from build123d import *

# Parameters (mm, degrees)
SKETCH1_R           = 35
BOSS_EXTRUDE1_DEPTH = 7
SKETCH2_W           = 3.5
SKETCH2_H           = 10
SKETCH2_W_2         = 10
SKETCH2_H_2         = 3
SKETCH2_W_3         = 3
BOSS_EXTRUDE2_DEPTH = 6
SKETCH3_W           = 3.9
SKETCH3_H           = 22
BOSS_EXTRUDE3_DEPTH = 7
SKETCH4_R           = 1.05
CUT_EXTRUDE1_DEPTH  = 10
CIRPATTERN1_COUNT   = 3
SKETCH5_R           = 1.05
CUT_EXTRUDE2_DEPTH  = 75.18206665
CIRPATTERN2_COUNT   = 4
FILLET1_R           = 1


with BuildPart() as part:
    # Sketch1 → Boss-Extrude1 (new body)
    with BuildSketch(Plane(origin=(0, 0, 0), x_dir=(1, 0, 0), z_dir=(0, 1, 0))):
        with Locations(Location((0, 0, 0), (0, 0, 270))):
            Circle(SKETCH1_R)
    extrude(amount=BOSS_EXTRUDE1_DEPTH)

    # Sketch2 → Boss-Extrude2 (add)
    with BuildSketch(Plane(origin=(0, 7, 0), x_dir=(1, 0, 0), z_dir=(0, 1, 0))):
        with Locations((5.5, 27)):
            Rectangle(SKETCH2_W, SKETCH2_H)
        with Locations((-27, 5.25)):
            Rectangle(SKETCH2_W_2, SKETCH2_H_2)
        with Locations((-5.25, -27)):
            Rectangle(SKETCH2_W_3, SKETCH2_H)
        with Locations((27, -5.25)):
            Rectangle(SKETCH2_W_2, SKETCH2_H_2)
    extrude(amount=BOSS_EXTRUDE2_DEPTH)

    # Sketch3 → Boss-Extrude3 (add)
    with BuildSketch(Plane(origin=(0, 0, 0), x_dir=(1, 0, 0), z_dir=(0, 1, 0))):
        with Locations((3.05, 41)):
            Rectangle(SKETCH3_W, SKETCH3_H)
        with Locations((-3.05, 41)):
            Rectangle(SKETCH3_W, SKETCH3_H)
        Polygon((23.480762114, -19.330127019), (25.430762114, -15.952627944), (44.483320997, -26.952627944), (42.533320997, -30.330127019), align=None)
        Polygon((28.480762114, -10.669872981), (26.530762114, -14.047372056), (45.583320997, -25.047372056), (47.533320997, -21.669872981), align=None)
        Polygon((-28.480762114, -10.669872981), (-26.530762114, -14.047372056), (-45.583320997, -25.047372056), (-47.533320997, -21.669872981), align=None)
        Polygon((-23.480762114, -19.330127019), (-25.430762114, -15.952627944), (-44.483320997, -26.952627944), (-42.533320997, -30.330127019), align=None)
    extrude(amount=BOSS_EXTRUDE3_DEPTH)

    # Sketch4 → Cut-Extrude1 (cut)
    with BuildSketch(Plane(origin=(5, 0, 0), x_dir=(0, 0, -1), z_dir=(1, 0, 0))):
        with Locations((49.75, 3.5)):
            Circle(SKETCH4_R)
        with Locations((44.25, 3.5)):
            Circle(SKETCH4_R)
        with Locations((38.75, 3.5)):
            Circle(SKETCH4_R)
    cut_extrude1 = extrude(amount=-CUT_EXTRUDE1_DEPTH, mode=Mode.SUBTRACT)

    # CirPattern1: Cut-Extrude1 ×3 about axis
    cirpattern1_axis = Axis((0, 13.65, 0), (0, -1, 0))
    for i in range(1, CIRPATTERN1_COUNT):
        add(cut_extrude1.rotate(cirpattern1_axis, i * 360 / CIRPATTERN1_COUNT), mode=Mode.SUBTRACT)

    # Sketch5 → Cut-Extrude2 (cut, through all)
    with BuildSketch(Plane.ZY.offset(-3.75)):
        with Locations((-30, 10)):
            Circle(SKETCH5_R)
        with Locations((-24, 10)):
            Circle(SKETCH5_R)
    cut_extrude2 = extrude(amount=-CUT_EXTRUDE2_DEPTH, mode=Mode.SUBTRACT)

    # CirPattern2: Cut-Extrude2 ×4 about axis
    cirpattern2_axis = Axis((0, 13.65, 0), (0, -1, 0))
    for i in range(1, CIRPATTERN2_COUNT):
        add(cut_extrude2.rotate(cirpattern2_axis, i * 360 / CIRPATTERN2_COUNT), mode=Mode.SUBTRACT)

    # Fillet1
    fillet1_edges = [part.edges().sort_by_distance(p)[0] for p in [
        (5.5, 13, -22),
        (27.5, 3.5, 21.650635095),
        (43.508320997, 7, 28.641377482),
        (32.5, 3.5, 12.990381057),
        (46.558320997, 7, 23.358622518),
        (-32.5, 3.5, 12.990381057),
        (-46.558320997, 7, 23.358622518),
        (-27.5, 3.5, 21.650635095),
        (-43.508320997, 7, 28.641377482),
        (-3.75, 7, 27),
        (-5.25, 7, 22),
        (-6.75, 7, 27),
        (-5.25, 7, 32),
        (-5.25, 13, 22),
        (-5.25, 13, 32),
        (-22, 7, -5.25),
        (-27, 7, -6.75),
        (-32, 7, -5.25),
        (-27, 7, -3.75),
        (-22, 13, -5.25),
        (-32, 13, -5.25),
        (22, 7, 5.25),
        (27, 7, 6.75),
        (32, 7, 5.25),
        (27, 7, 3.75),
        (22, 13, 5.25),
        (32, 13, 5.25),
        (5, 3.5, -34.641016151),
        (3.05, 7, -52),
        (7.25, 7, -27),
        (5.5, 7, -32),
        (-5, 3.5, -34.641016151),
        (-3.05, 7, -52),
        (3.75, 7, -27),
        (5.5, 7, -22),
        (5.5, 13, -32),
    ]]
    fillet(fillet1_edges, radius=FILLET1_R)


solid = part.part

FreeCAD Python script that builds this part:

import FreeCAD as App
import Part
import Sketcher
Q = App.Units.Quantity


def edges_at(feature, points):
    """Names of the edges that pass closest to the given points."""
    edges = feature.Shape.Edges
    near = lambda p: min(range(len(edges)), key=lambda i: edges[i].distToShape(Part.Vertex(*p))[0])
    return sorted({f"Edge{near(p) + 1}" for p in points})


def add_polygon(sketch, points):
    """Adds a closed chain of lines whose ends are joined by coincident constraints."""
    first, n = sketch.GeometryCount, len(points)
    for a, b in zip(points, points[1:] + points[:1]):
        sketch.addGeometry(Part.LineSegment(App.Vector(*a, 0), App.Vector(*b, 0)), False)
    for i in range(n):
        sketch.addConstraint(Sketcher.Constraint("Coincident", first + i, 2, first + (i + 1) % n, 1))

doc = App.newDocument("Part")
body = doc.addObject("PartDesign::Body", "Body")

# Sketch on XZ plane
sketch1 = body.newObject("Sketcher::SketchObject", "Sketch")
sketch1.AttachmentSupport = (doc.getObject("XZ_Plane"), [""])
sketch1.MapMode = "FlatFace"
sketch1.addGeometry(Part.Circle(App.Vector(0, 0, 0), App.Vector(0, 0, 1), 35), False)
sketch1.addConstraint(Sketcher.Constraint("Coincident", 0, 3, -1, 1))
sketch1.addConstraint(Sketcher.Constraint("Diameter", 0, Q("70 mm")))
pad1 = body.newObject("PartDesign::Pad", "Pad")
pad1.Profile = sketch1
pad1.Length = 7
pad1.Reversed = True

# Sketch on XZ plane
sketch2 = body.newObject("Sketcher::SketchObject", "Sketch001")
sketch2.AttachmentSupport = (doc.getObject("XZ_Plane"), [""])
sketch2.MapMode = "FlatFace"
sketch2.AttachmentOffset = App.Placement(App.Vector(0, 0, -7), App.Rotation())
add_polygon(sketch2, [(3.8, -32), (3.8, -22), (7.2, -22), (7.2, -32)])  # lines 0-3
add_polygon(sketch2, [(-32, -6.8), (-32, -3.8), (-22, -3.8), (-22, -6.8)])  # lines 4-7
add_polygon(sketch2, [(-6.8, 22), (-6.8, 32), (-3.8, 32), (-3.8, 22)])  # lines 8-11
add_polygon(sketch2, [(22, 3.8), (22, 6.8), (32, 6.8), (32, 3.8)])  # lines 12-15
sketch2.addConstraint(Sketcher.Constraint("Vertical", 0))
sketch2.addConstraint(Sketcher.Constraint("Horizontal", 1))
sketch2.addConstraint(Sketcher.Constraint("Vertical", 2))
sketch2.addConstraint(Sketcher.Constraint("Horizontal", 3))
sketch2.addConstraint(Sketcher.Constraint("Vertical", 4))
sketch2.addConstraint(Sketcher.Constraint("Horizontal", 5))
sketch2.addConstraint(Sketcher.Constraint("Vertical", 6))
sketch2.addConstraint(Sketcher.Constraint("Horizontal", 7))
sketch2.addConstraint(Sketcher.Constraint("Vertical", 8))
sketch2.addConstraint(Sketcher.Constraint("Horizontal", 9))
sketch2.addConstraint(Sketcher.Constraint("Vertical", 10))
sketch2.addConstraint(Sketcher.Constraint("Horizontal", 11))
sketch2.addConstraint(Sketcher.Constraint("Vertical", 12))
sketch2.addConstraint(Sketcher.Constraint("Horizontal", 13))
sketch2.addConstraint(Sketcher.Constraint("Vertical", 14))
sketch2.addConstraint(Sketcher.Constraint("Horizontal", 15))
sketch2.addConstraint(Sketcher.Constraint("Symmetric", 3, 2, 9, 2, -1, 1))
sketch2.addConstraint(Sketcher.Constraint("Symmetric", 6, 2, 12, 2, -1, 1))
sketch2.addConstraint(Sketcher.Constraint("Symmetric", 4, 2, 14, 2, -1, 1))
sketch2.addConstraint(Sketcher.Constraint("Equal", 15, 0))
sketch2.addConstraint(Sketcher.Constraint("Equal", 11, 4))
sketch2.addConstraint(Sketcher.Constraint("Equal", 2, 8))
sketch2.addConstraint(Sketcher.Constraint("DistanceX", 5, 1, 5, 2, Q("10 mm")))
sketch2.addConstraint(Sketcher.Constraint("DistanceX", 9, 1, 9, 2, Q("3 mm")))
sketch2.addConstraint(Sketcher.Constraint("DistanceX", 1, 1, 1, 2, Q("3.5 mm")))
sketch2.addConstraint(Sketcher.Constraint("DistanceY", 0, 2, -1, 1, Q("22 mm")))
sketch2.addConstraint(Sketcher.Constraint("DistanceX", 4, 2, -1, 1, Q("32 mm")))
sketch2.addConstraint(Sketcher.Constraint("DistanceX", 8, 2, 0, 2, Q("10.5 mm")))
sketch2.addConstraint(Sketcher.Constraint("DistanceY", 4, 2, -1, 1, Q("3.75 mm")))
pad2 = body.newObject("PartDesign::Pad", "Pad001")
pad2.Profile = sketch2
pad2.Length = 6
pad2.Reversed = True

# Sketch on XZ plane
sketch3 = body.newObject("Sketcher::SketchObject", "Sketch002")
sketch3.AttachmentSupport = (doc.getObject("XZ_Plane"), [""])
sketch3.MapMode = "FlatFace"
add_polygon(sketch3, [(1.1, -52), (1.1, -30), (5, -30), (5, -52)])  # lines 0-3
add_polygon(sketch3, [(-5, -52), (-5, -30), (-1.1, -30), (-1.1, -52)])  # lines 4-7
add_polygon(sketch3, [(25.4, 16), (23.5, 19.3), (42.5, 30.3), (44.5, 27)])  # lines 8-11
add_polygon(sketch3, [(28.5, 10.7), (26.5, 14), (45.6, 25), (47.5, 21.7)])  # lines 12-15
add_polygon(sketch3, [(-26.5, 14), (-28.5, 10.7), (-47.5, 21.7), (-45.6, 25)])  # lines 16-19
add_polygon(sketch3, [(-23.5, 19.3), (-25.4, 16), (-44.5, 27), (-42.5, 30.3)])  # lines 20-23
sketch3.addConstraint(Sketcher.Constraint("Vertical", 0))
sketch3.addConstraint(Sketcher.Constraint("Horizontal", 1))
sketch3.addConstraint(Sketcher.Constraint("Vertical", 2))
sketch3.addConstraint(Sketcher.Constraint("Horizontal", 3))
sketch3.addConstraint(Sketcher.Constraint("Vertical", 4))
sketch3.addConstraint(Sketcher.Constraint("Horizontal", 5))
sketch3.addConstraint(Sketcher.Constraint("Vertical", 6))
sketch3.addConstraint(Sketcher.Constraint("Horizontal", 7))
sketch3.addConstraint(Sketcher.Constraint("Symmetric", 1, 2, 4, 2, -2))
sketch3.addConstraint(Sketcher.Constraint("Symmetric", 3, 2, 6, 2, -2))
sketch3.addConstraint(Sketcher.Constraint("Symmetric", 15, 2, 16, 2, -2))
sketch3.addConstraint(Sketcher.Constraint("Symmetric", 14, 2, 17, 2, -2))
sketch3.addConstraint(Sketcher.Constraint("Symmetric", 13, 2, 18, 2, -2))
sketch3.addConstraint(Sketcher.Constraint("Symmetric", 12, 2, 19, 2, -2))
sketch3.addConstraint(Sketcher.Constraint("Symmetric", 11, 2, 20, 2, -2))
sketch3.addConstraint(Sketcher.Constraint("Symmetric", 10, 2, 21, 2, -2))
sketch3.addConstraint(Sketcher.Constraint("Symmetric", 9, 2, 22, 2, -2))
sketch3.addConstraint(Sketcher.Constraint("Symmetric", 8, 2, 23, 2, -2))
sketch3.addConstraint(Sketcher.Constraint("Perpendicular", 8, 9))
sketch3.addConstraint(Sketcher.Constraint("Perpendicular", 9, 10))
sketch3.addConstraint(Sketcher.Constraint("Perpendicular", 10, 11))
sketch3.addConstraint(Sketcher.Constraint("Perpendicular", 11, 12))
sketch3.addConstraint(Sketcher.Constraint("Perpendicular", 12, 13))
sketch3.addConstraint(Sketcher.Constraint("Perpendicular", 13, 14))
sketch3.addConstraint(Sketcher.Constraint("Perpendicular", 14, 15))
sketch3.addConstraint(Sketcher.Constraint("Equal", 10, 12))
sketch3.addConstraint(Sketcher.Constraint("Equal", 11, 13))
sketch3.addConstraint(Sketcher.Constraint("DistanceY", 0, 1, 0, 2, Q("22 mm")))
sketch3.addConstraint(Sketcher.Constraint("Angle", 8, Q("120 deg")))
sketch3.addConstraint(Sketcher.Constraint("Distance", 9, Q("22 mm")))
sketch3.addConstraint(Sketcher.Constraint("DistanceX", 1, 1, 1, 2, Q("3.9 mm")))
sketch3.addConstraint(Sketcher.Constraint("DistanceY", 0, 2, -1, 1, Q("30 mm")))
sketch3.addConstraint(Sketcher.Constraint("DistanceX", -1, 1, 1, 2, Q("5 mm")))
sketch3.addConstraint(Sketcher.Constraint("DistanceX", 9, 2, 14, 2, Q("5 mm")))
sketch3.addConstraint(Sketcher.Constraint("Distance", 8, Q("3.9 mm")))
sketch3.addConstraint(Sketcher.Constraint("DistanceX", -1, 1, 9, 2, Q("42.533321 mm")))
sketch3.addConstraint(Sketcher.Constraint("DistanceY", -1, 1, 8, 2, Q("19.330127 mm")))
sketch3.addConstraint(Sketcher.Constraint("DistanceY", -1, 1, 12, 2, Q("14.047372 mm")))
pad3 = body.newObject("PartDesign::Pad", "Pad002")
pad3.Profile = sketch3
pad3.Length = 7
pad3.Reversed = True

# Sketch on YZ plane
sketch4 = body.newObject("Sketcher::SketchObject", "Sketch003")
sketch4.AttachmentSupport = (doc.getObject("YZ_Plane"), [""])
sketch4.MapMode = "FlatFace"
sketch4.AttachmentOffset = App.Placement(App.Vector(0, 0, 5), App.Rotation())
sketch4.addGeometry(Part.Circle(App.Vector(3.5, -49.8, 0), App.Vector(0, 0, 1), 1.1), False)
sketch4.addGeometry(Part.Circle(App.Vector(3.5, -44.2, 0), App.Vector(0, 0, 1), 1.1), False)
sketch4.addGeometry(Part.Circle(App.Vector(3.5, -38.8, 0), App.Vector(0, 0, 1), 1.1), False)
sketch4.addConstraint(Sketcher.Constraint("Equal", 0, 1))
sketch4.addConstraint(Sketcher.Constraint("Equal", 1, 2))
sketch4.addConstraint(Sketcher.Constraint("Vertical", 0, 3, 1, 3))
sketch4.addConstraint(Sketcher.Constraint("Vertical", 1, 3, 2, 3))
sketch4.addConstraint(Sketcher.Constraint("Diameter", 0, Q("2.1 mm")))
sketch4.addConstraint(Sketcher.Constraint("DistanceY", 0, 3, 2, 3, Q("11 mm")))
sketch4.addConstraint(Sketcher.Constraint("DistanceX", -1, 1, 0, 3, Q("3.5 mm")))
sketch4.addConstraint(Sketcher.Constraint("DistanceY", 0, 3, 1, 3, Q("5.5 mm")))
sketch4.addConstraint(Sketcher.Constraint("DistanceY", 0, 3, -1, 1, Q("49.75 mm")))
pocket1 = body.newObject("PartDesign::Pocket", "Pocket")
pocket1.Profile = sketch4
pocket1.Length = 10
doc.recompute()

polarpattern = body.newObject("PartDesign::PolarPattern", "PolarPattern")
polarpattern.Originals = [pocket1]
polarpattern.Axis = (doc.getObject("Y_Axis"), [""])
polarpattern.Angle = 360
polarpattern.Occurrences = 3
body.Tip = polarpattern

# Sketch on YZ plane
sketch5 = body.newObject("Sketcher::SketchObject", "Sketch004")
sketch5.AttachmentSupport = (doc.getObject("YZ_Plane"), [""])
sketch5.MapMode = "FlatFace"
sketch5.AttachmentOffset = App.Placement(App.Vector(0, 0, 3.75), App.Rotation())
sketch5.addGeometry(Part.Circle(App.Vector(10, -30, 0), App.Vector(0, 0, 1), 1.1), False)
sketch5.addGeometry(Part.Circle(App.Vector(10, -24, 0), App.Vector(0, 0, 1), 1.1), False)
sketch5.addConstraint(Sketcher.Constraint("Equal", 0, 1))
sketch5.addConstraint(Sketcher.Constraint("Vertical", 0, 3, 1, 3))
sketch5.addConstraint(Sketcher.Constraint("Diameter", 0, Q("2.1 mm")))
sketch5.addConstraint(Sketcher.Constraint("DistanceX", -1, 1, 0, 3, Q("10 mm")))
sketch5.addConstraint(Sketcher.Constraint("DistanceY", 0, 3, -1, 1, Q("30 mm")))
sketch5.addConstraint(Sketcher.Constraint("DistanceY", 1, 3, -1, 1, Q("24 mm")))
pocket2 = body.newObject("PartDesign::Pocket", "Pocket001")
pocket2.Profile = sketch5
pocket2.Type = "ThroughAll"
pocket2.Reversed = True
doc.recompute()

polarpattern2 = body.newObject("PartDesign::PolarPattern", "PolarPattern001")
polarpattern2.Originals = [pocket2]
polarpattern2.Axis = (doc.getObject("Y_Axis"), [""])
polarpattern2.Angle = 360
polarpattern2.Occurrences = 4
body.Tip = polarpattern2
doc.recompute()

fillet = body.newObject("PartDesign::Fillet", "Fillet")
fillet.Base = (polarpattern2, edges_at(polarpattern2, [
    (5.5, 13, -22),
    (27.5, 3.5, 21.651),
    (43.508, 7, 28.641),
    (32.5, 3.5, 12.99),
    (46.558, 7, 23.359),
    (-32.5, 3.5, 12.99),
    (-46.558, 7, 23.359),
    (-27.5, 3.5, 21.651),
    (-43.508, 7, 28.641),
    (-3.75, 7, 27),
    (-5.25, 7, 22),
    (-6.75, 7, 27),
    (-5.25, 7, 32),
    (-5.25, 13, 22),
    (-5.25, 13, 32),
    (-22, 7, -5.25),
    (-27, 7, -6.75),
    (-32, 7, -5.25),
    (-27, 7, -3.75),
    (-22, 13, -5.25),
    (-32, 13, -5.25),
    (22, 7, 5.25),
    (27, 7, 6.75),
    (32, 7, 5.25),
    (27, 7, 3.75),
    (22, 13, 5.25),
    (32, 13, 5.25),
    (5, 3.5, -34.641),
    (3.05, 7, -52),
    (7.25, 7, -27),
    (5.5, 7, -32),
    (-5, 3.5, -34.641),
    (-3.05, 7, -52),
    (3.75, 7, -27),
    (5.5, 7, -22),
    (5.5, 13, -32),
]))
fillet.Radius = 1

doc.recompute()
